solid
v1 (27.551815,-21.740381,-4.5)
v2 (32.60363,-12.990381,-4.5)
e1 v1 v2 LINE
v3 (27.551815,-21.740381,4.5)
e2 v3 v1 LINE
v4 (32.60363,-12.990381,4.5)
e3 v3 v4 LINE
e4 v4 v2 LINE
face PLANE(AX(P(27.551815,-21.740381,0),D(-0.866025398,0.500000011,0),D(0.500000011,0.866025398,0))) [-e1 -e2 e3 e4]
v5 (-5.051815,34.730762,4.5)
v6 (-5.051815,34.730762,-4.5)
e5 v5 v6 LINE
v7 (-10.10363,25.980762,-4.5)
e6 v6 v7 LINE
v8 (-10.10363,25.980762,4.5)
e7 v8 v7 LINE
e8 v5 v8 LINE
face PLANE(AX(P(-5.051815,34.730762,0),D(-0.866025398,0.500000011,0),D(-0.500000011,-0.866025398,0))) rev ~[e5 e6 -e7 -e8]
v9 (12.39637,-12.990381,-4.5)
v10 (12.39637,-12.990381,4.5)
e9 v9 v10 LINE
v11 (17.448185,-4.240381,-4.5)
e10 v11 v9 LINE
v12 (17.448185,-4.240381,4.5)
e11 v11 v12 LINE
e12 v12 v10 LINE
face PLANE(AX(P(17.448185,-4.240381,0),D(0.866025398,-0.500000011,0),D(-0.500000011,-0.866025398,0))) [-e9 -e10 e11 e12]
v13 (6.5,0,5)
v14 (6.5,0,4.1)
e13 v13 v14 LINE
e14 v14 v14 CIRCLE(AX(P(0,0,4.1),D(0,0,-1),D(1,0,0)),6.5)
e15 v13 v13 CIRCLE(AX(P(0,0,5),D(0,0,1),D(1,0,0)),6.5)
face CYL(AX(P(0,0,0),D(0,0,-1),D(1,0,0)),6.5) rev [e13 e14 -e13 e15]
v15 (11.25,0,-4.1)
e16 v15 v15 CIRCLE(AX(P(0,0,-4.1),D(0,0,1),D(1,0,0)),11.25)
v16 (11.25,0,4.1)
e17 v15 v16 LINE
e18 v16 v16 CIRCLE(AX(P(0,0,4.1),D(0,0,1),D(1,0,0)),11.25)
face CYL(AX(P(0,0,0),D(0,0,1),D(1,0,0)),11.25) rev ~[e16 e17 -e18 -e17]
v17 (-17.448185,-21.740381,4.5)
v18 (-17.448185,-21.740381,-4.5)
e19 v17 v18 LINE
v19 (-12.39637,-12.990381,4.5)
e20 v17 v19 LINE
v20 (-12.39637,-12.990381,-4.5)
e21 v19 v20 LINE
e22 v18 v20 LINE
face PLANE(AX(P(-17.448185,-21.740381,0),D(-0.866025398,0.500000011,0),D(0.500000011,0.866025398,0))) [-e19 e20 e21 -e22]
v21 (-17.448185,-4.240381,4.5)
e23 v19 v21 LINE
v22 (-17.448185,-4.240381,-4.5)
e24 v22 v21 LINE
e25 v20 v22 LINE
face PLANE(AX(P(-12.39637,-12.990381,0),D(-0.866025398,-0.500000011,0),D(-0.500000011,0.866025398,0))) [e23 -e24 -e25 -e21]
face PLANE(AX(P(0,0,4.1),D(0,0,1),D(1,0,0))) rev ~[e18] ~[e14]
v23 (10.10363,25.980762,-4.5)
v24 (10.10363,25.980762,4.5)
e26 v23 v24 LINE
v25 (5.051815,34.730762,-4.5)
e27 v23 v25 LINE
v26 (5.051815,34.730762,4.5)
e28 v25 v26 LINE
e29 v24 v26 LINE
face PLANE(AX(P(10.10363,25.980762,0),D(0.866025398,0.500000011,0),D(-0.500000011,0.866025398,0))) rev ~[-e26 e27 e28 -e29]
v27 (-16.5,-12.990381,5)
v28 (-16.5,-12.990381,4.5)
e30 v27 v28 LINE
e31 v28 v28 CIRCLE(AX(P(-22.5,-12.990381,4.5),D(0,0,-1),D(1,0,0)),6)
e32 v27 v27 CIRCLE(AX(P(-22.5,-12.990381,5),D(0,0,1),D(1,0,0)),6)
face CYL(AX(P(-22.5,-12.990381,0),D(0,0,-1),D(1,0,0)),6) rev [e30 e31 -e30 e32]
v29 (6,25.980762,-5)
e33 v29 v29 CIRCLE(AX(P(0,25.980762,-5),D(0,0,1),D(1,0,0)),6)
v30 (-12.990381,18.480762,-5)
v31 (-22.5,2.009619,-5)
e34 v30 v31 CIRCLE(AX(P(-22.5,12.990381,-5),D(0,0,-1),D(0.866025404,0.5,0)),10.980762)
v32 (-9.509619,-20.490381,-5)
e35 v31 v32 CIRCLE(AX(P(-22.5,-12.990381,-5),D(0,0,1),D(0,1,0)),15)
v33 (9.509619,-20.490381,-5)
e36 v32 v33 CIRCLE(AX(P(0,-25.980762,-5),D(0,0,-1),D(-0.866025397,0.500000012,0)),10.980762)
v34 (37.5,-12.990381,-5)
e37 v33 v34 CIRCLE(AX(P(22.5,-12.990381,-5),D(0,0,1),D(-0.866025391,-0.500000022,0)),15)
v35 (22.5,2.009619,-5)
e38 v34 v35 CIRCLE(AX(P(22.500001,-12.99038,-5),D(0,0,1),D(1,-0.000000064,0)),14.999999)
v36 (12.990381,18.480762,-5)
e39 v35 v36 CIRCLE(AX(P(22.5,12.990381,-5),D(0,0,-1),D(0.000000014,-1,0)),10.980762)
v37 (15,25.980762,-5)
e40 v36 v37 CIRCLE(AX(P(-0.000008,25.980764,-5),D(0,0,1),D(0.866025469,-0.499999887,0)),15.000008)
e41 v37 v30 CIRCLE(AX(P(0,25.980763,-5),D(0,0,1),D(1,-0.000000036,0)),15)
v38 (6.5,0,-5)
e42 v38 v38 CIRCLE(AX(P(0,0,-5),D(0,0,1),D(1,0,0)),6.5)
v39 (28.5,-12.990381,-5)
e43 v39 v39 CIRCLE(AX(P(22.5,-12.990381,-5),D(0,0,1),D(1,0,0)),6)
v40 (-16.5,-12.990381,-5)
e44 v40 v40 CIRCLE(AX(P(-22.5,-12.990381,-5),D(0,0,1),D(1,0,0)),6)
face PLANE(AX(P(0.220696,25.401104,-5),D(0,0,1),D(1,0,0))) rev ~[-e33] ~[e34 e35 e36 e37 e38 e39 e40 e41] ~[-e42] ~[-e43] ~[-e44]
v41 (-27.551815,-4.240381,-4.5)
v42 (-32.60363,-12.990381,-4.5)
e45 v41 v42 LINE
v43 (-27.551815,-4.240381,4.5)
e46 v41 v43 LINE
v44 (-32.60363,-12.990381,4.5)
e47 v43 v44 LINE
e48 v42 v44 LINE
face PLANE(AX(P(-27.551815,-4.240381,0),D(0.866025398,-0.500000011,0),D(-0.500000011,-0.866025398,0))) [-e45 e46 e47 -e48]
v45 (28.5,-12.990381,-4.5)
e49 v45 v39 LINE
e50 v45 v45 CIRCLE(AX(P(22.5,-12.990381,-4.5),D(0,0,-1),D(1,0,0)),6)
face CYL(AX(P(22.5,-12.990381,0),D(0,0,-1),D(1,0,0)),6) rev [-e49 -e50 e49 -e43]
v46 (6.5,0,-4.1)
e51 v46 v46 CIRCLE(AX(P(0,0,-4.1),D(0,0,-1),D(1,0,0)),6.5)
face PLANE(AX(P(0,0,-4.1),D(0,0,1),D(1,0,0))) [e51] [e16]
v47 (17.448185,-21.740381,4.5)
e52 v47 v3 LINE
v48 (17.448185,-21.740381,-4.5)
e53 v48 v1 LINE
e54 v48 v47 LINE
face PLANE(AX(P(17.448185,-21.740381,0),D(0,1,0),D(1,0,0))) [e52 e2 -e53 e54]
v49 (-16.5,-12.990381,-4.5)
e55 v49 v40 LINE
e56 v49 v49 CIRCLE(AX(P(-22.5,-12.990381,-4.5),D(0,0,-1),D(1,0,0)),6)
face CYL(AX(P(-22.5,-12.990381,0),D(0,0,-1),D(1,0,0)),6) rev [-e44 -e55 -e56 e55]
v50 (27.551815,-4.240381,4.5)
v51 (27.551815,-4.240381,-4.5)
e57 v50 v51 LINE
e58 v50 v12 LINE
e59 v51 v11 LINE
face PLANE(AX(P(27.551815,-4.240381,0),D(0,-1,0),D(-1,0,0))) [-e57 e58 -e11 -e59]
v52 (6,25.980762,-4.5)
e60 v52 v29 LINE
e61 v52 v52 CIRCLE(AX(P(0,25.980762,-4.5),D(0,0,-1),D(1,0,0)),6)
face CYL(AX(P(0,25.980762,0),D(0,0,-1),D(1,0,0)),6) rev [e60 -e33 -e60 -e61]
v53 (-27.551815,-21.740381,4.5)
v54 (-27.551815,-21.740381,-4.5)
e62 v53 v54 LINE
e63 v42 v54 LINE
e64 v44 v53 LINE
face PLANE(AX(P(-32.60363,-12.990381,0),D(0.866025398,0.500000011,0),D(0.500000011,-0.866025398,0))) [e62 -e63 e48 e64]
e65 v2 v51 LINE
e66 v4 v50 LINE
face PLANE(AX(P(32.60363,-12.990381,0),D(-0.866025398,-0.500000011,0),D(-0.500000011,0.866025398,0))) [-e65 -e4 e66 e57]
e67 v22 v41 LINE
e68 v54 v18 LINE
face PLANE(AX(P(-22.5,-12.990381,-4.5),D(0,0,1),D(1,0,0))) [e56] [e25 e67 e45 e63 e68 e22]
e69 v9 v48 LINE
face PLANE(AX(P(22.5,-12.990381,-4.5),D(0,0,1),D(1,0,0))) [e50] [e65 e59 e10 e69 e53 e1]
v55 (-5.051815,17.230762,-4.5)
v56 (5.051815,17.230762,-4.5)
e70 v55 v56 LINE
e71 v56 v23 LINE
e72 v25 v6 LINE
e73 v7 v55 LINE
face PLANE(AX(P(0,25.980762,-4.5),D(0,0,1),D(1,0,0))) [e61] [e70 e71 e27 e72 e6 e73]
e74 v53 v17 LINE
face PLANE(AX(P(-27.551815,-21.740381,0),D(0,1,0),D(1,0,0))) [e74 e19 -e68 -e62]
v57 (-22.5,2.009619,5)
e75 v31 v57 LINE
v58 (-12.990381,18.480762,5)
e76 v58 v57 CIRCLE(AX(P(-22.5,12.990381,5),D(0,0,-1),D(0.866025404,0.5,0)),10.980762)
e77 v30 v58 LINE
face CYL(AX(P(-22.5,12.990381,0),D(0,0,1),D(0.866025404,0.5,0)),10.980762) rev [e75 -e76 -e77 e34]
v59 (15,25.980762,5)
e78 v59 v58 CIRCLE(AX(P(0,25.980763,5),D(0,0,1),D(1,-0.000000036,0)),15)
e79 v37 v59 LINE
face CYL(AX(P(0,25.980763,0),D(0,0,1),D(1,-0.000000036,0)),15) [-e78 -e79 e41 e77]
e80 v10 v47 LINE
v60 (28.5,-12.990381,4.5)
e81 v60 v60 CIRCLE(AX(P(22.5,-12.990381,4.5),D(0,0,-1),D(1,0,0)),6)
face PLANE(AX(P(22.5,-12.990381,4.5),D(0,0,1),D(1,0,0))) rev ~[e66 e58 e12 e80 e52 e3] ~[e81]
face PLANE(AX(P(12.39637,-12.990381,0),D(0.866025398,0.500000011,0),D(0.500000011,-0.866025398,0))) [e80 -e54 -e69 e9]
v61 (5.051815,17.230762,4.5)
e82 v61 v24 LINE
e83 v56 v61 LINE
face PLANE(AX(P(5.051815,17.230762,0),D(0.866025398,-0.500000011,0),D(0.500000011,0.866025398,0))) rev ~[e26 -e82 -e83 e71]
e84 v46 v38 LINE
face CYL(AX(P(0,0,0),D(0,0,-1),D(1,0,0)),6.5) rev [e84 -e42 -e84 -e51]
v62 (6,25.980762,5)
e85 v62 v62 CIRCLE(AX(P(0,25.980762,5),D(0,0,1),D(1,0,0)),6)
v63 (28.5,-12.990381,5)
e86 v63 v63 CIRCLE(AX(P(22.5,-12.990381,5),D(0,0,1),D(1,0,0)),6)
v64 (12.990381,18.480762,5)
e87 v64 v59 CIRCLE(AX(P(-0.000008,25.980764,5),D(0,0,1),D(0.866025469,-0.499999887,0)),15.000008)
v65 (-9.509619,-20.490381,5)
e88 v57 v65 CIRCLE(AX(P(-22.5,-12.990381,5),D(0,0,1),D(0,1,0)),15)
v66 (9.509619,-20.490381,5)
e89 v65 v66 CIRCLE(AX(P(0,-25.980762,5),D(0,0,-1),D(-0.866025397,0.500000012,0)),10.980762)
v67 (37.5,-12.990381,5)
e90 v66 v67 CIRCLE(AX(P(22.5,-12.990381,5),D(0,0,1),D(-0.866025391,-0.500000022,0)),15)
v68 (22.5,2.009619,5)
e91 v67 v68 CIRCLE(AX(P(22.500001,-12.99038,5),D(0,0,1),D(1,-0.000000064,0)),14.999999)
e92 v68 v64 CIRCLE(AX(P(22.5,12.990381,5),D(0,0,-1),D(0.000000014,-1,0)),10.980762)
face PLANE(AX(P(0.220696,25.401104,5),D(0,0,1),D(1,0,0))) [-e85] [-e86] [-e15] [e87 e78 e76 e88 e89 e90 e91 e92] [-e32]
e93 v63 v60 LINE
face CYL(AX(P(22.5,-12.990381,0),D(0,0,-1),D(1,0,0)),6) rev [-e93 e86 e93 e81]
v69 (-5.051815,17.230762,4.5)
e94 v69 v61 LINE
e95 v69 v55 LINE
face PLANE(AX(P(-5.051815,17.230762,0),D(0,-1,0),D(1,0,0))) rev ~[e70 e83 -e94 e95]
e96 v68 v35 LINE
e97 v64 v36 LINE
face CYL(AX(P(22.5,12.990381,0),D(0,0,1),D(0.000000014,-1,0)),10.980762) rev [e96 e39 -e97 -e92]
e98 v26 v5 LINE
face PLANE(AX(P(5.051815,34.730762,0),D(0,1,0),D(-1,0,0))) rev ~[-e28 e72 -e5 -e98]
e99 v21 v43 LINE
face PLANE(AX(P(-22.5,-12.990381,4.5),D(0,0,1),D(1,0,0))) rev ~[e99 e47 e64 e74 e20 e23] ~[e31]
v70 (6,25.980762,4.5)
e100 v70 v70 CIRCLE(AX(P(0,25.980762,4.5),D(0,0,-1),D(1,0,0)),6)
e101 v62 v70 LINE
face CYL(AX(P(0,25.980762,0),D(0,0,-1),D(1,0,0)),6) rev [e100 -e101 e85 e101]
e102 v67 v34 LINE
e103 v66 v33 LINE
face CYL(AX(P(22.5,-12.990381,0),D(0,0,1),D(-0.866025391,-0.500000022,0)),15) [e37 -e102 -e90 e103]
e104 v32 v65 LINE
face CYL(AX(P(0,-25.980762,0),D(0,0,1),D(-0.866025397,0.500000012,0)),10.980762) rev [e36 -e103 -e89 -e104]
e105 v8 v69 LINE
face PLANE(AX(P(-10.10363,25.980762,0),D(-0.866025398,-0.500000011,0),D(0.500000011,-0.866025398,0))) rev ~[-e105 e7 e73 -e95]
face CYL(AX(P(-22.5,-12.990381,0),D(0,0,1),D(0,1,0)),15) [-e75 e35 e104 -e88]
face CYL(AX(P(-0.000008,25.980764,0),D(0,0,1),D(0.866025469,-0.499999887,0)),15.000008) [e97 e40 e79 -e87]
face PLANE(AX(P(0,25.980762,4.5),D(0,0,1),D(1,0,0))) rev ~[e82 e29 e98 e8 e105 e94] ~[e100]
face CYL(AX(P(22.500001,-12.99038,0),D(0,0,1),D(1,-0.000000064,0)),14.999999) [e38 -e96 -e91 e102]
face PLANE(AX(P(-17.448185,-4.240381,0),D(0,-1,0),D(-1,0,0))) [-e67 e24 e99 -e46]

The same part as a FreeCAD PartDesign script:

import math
import FreeCAD as App
import Part
import Sketcher

V = App.Vector
Q = App.Units.Quantity


def add_polygon(sketch, points):
    """Adds a closed chain of lines whose ends are joined by coincident constraints."""
    first, n = sketch.GeometryCount, len(points)
    for a, b in zip(points, points[1:] + points[:1]):
        sketch.addGeometry(Part.LineSegment(App.Vector(*a, 0), App.Vector(*b, 0)), False)
    for i in range(n):
        sketch.addConstraint(Sketcher.Constraint("Coincident", first + i, 2, first + (i + 1) % n, 1))

doc = App.newDocument("Part")
body = doc.addObject("PartDesign::Body", "Body")

# Sketch on XY plane
sketch1 = doc.addObject("Sketcher::SketchObject", "Sketch")
body.addObject(sketch1)
sketch1.AttachmentSupport = (doc.XY_Plane, [""])
sketch1.MapMode = "FlatFace"
sketch1.addGeometry([
    Part.ArcOfCircle(Part.Circle(V(-0.000008, 25.980764, 0), V(0, 0, 1), 15.000008), math.radians(-29.999993), math.radians(-0.000008)),  # 0
    Part.ArcOfCircle(Part.Circle(V(0, 25.980763, 0), V(0, 0, 1), 15), math.radians(-0.000002), math.radians(210.000002)),  # 1
    Part.ArcOfCircle(Part.Circle(V(-22.5, 12.990381, 0), V(0, 0, 1), 10.980762), math.radians(-90.000001), math.radians(30)),  # 2
    Part.ArcOfCircle(Part.Circle(V(-22.5, -12.990381, 0), V(0, 0, 1), 15), math.radians(90), math.radians(330)),  # 3
    Part.ArcOfCircle(Part.Circle(V(0, -25.980762, 0), V(0, 0, 1), 10.980762), math.radians(30.000001), math.radians(149.999999)),  # 4
    Part.ArcOfCircle(Part.Circle(V(22.5, -12.990381, 0), V(0, 0, 1), 15), math.radians(-149.999999), math.radians(-0.000001)),  # 5
    Part.ArcOfCircle(Part.Circle(V(22.500001, -12.99038, 0), V(0, 0, 1), 14.999999), math.radians(-0.000004), math.radians(90.000004)),  # 6
    Part.ArcOfCircle(Part.Circle(V(22.5, 12.990381, 0), V(0, 0, 1), 10.980762), math.radians(150), math.radians(270.000001)),  # 7
    Part.Circle(V(-22.5, -12.990381, 0), V(0, 0, 1), 6),  # 8
    Part.Circle(V(22.5, -12.990381, 0), V(0, 0, 1), 6),  # 9
    Part.Circle(V(0, 0, 0), V(0, 0, 1), 6.5),  # 10
    Part.Circle(V(0, 25.980762, 0), V(0, 0, 1), 6),  # 11
], False)
sketch1.addConstraint([
    Sketcher.Constraint("Tangent", 0, 2, 1, 1),
    Sketcher.Constraint("Tangent", 1, 2, 2, 2),
    Sketcher.Constraint("Tangent", 2, 1, 3, 1),
    Sketcher.Constraint("Tangent", 3, 2, 4, 2),
    Sketcher.Constraint("Tangent", 4, 1, 5, 1),
    Sketcher.Constraint("Tangent", 5, 2, 6, 1),
    Sketcher.Constraint("Tangent", 6, 2, 7, 2),
    Sketcher.Constraint("Tangent", 7, 1, 0, 1),
    Sketcher.Constraint("Coincident", 10, 3, -1, 1),
    Sketcher.Constraint("Coincident", 8, 3, 3, 3),
    Sketcher.Constraint("Coincident", 9, 3, 5, 3),
    Sketcher.Constraint("Coincident", 11, 3, 0, 3),
    Sketcher.Constraint("Equal", 1, 3),
    Sketcher.Constraint("Equal", 2, 4),
    Sketcher.Constraint("Equal", 3, 5),
    Sketcher.Constraint("Equal", 5, 6),
    Sketcher.Constraint("Equal", 4, 7),
    Sketcher.Constraint("Equal", 8, 9),
    Sketcher.Constraint("Equal", 9, 11),
    Sketcher.Constraint("Symmetric", 0, 3, 4, 3, -1, 1),
    Sketcher.Constraint("Symmetric", 2, 3, 5, 3, -1, 1),
    Sketcher.Constraint("Symmetric", 3, 3, 5, 3, -2),
    Sketcher.Constraint("Horizontal", 11, 3, 0, 2),
    Sketcher.Constraint("Horizontal", 9, 3, 5, 2),
    Sketcher.Constraint("Diameter", 8, 12.0),
    Sketcher.Constraint("Diameter", 10, 13.0),
    Sketcher.Constraint("Radius", 1, 15.0),
    Sketcher.Constraint("DistanceX", 3, 3, 5, 3, 45.0),
    Sketcher.Constraint("DistanceY", 1, 2, 11, 3, 7.5),
])
pad1 = doc.addObject("PartDesign::Pad", "Pad")
body.addObject(pad1)
pad1.Profile = sketch1
pad1.Length = 10
pad1.Midplane = True

# Sketch on XY plane
sketch2 = doc.addObject("Sketcher::SketchObject", "Sketch001")
body.addObject(sketch2)
sketch2.AttachmentSupport = (doc.XY_Plane, [""])
sketch2.MapMode = "FlatFace"
sketch2.addGeometry(Part.Circle(V(0, 0, 0), V(0, 0, 1), 11.25), False)
sketch2.addConstraint([
    Sketcher.Constraint("Coincident", 0, 3, -1, 1),
    Sketcher.Constraint("Diameter", 0, 22.5),
])
pocket1 = doc.addObject("PartDesign::Pocket", "Pocket")
body.addObject(pocket1)
pocket1.Profile = sketch2
pocket1.Length = 8.2
pocket1.Midplane = True

# Sketch on XY plane
sketch3 = doc.addObject("Sketcher::SketchObject", "Sketch002")
body.addObject(sketch3)
sketch3.AttachmentSupport = (doc.XY_Plane, [""])
sketch3.MapMode = "FlatFace"
add_polygon(sketch3, [(27.551815, -4.240381), (17.448185, -4.240381), (12.39637, -12.990381), (17.448185, -21.740381), (27.551815, -21.740381), (32.60363, -12.990381)])  # lines 0-5
add_polygon(sketch3, [(-12.39637, -12.990381), (-17.448185, -4.240381), (-27.551815, -4.240381), (-32.60363, -12.990381), (-27.551815, -21.740381), (-17.448185, -21.740381)])  # lines 6-11
add_polygon(sketch3, [(-5.051815, 17.230762), (5.051815, 17.230762), (10.10363, 25.980762), (5.051815, 34.730762), (-5.051815, 34.730762), (-10.10363, 25.980762)])  # lines 12-17
sketch3.addConstraint([
    Sketcher.Constraint("Horizontal", 0),
    Sketcher.Constraint("Horizontal", 3),
    Sketcher.Constraint("Horizontal", 7),
    Sketcher.Constraint("Horizontal", 10),
    Sketcher.Constraint("Horizontal", 12),
    Sketcher.Constraint("Horizontal", 15),
    Sketcher.Constraint("Symmetric", 0, 2, 6, 2, -2),
    Sketcher.Constraint("Symmetric", 4, 2, 8, 2, -2),
    Sketcher.Constraint("Symmetric", 3, 2, 9, 2, -2),
    Sketcher.Constraint("Symmetric", 1, 2, 11, 2, -2),
    Sketcher.Constraint("Symmetric", 13, 2, 16, 2, -2),
    Sketcher.Constraint("Parallel", 1, 4),
    Sketcher.Constraint("Parallel", 2, 5),
    Sketcher.Constraint("Parallel", 5, 6),
    Sketcher.Constraint("Parallel", 4, 8),
    Sketcher.Constraint("Parallel", 8, 11),
    Sketcher.Constraint("Parallel", 11, 13),
    Sketcher.Constraint("Parallel", 9, 14),
    Sketcher.Constraint("Parallel", 13, 16),
    Sketcher.Constraint("Parallel", 14, 17),
    Sketcher.Constraint("Horizontal", 1, 2, 4, 2),
    Sketcher.Constraint("Vertical", 0, 2, 2, 2),
    Sketcher.Constraint("Vertical", 12, 2, 14, 2),
    Sketcher.Constraint("Equal", 10, 12),
    Sketcher.Constraint("Equal", 11, 13),
    Sketcher.Constraint("Angle", 1, Q("-120.000001 deg")),
    Sketcher.Constraint("DistanceX", 6, 2, 5, 2, 45.0),
    Sketcher.Constraint("DistanceY", 2, 2, 0, 2, 17.5),
    Sketcher.Constraint("DistanceX", 0, 2, 0, 1, 10.10363),
    Sketcher.Constraint("DistanceY", 0, 2, -1, 1, 4.240381),
    Sketcher.Constraint("DistanceY", -1, 1, 12, 2, 17.230762),
])
pocket2 = doc.addObject("PartDesign::Pocket", "Pocket001")
body.addObject(pocket2)
pocket2.Profile = sketch3
pocket2.Length = 9
pocket2.Midplane = True

doc.recompute()
